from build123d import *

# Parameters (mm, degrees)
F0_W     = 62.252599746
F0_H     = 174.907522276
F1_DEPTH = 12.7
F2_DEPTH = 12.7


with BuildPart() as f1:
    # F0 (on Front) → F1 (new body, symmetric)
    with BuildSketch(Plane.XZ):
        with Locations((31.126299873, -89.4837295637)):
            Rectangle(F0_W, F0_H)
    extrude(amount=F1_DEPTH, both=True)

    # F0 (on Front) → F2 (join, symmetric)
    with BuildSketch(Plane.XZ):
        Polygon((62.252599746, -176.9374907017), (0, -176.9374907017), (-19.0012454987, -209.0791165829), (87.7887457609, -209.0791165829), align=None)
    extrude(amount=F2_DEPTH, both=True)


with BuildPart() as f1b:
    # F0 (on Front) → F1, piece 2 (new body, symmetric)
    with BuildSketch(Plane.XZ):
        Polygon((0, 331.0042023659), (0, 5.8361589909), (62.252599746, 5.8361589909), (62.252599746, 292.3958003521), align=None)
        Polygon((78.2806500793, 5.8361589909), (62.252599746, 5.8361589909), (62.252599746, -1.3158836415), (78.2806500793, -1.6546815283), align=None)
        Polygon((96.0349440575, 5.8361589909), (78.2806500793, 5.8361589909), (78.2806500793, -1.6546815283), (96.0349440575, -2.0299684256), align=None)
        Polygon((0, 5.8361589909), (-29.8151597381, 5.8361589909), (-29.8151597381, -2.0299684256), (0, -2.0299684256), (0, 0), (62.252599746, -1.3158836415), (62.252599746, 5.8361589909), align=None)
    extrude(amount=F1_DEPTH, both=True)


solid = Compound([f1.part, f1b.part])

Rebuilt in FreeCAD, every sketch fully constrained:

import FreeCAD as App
import Part
import Sketcher

V = App.Vector
Q = App.Units.Quantity

doc = App.newDocument("Part")
body = doc.addObject("PartDesign::Body", "Body")

sketch1 = doc.addObject("Sketcher::SketchObject", "Sketch")
body.addObject(sketch1)
sketch1.AttachmentSupport = (doc.XZ_Plane, [""])
sketch1.MapMode = "FlatFace"
sketch1.addGeometry([
    Part.LineSegment(V(0, -2.029968, 0), V(0, -176.937491, 0)),
    Part.LineSegment(V(0, -176.937491, 0), V(62.2526, -176.937491, 0)),
    Part.LineSegment(V(62.2526, -176.937491, 0), V(62.2526, -2.029968, 0)),
    Part.LineSegment(V(62.2526, -2.029968, 0), V(0, -2.029968, 0)),
], False)
sketch1.addConstraint([
    Sketcher.Constraint("Coincident", 0, 2, 1, 1),
    Sketcher.Constraint("Coincident", 1, 2, 2, 1),
    Sketcher.Constraint("Coincident", 2, 2, 3, 1),
    Sketcher.Constraint("Coincident", 3, 2, 0, 1),
    Sketcher.Constraint("Vertical", 0),
    Sketcher.Constraint("Horizontal", 1),
    Sketcher.Constraint("Vertical", 2),
    Sketcher.Constraint("Horizontal", 3),
    Sketcher.Constraint("PointOnObject", 0, 2, -2),
    Sketcher.Constraint("DistanceX", 1, 1, 1, 2, 62.2526),
    Sketcher.Constraint("DistanceY", 0, 2, 0, 1, 174.907522),
    Sketcher.Constraint("DistanceY", 0, 2, -1, 1, 176.937491),
])
pad1 = doc.addObject("PartDesign::Pad", "Pad")
body.addObject(pad1)
pad1.Profile = sketch1
pad1.Length = Q("1 in")
pad1.Midplane = True

sketch2 = doc.addObject("Sketcher::SketchObject", "Sketch001")
body.addObject(sketch2)
sketch2.AttachmentSupport = (doc.XZ_Plane, [""])
sketch2.MapMode = "FlatFace"
sketch2.addGeometry([
    Part.LineSegment(V(62.2526, -176.937491, 0), V(0, -176.937491, 0)),
    Part.LineSegment(V(0, -176.937491, 0), V(-19.001245, -209.079117, 0)),
    Part.LineSegment(V(-19.001245, -209.079117, 0), V(87.788746, -209.079117, 0)),
    Part.LineSegment(V(87.788746, -209.079117, 0), V(62.2526, -176.937491, 0)),
], False)
sketch2.addConstraint([
    Sketcher.Constraint("Coincident", 0, 2, 1, 1),
    Sketcher.Constraint("Coincident", 1, 2, 2, 1),
    Sketcher.Constraint("Coincident", 2, 2, 3, 1),
    Sketcher.Constraint("Coincident", 3, 2, 0, 1),
    Sketcher.Constraint("Horizontal", 0),
    Sketcher.Constraint("Horizontal", 2),
    Sketcher.Constraint("PointOnObject", 0, 2, -2),
    Sketcher.Constraint("DistanceX", 0, 2, 0, 1, 62.2526),
    Sketcher.Constraint("DistanceX", 2, 1, 2, 2, 106.789991),
    Sketcher.Constraint("Distance", 1, 37.33807),
    Sketcher.Constraint("Distance", 3, 41.05093),
    Sketcher.Constraint("DistanceY", 0, 2, -1, 1, 176.937491),
])
pad2 = doc.addObject("PartDesign::Pad", "Pad001")
body.addObject(pad2)
pad2.Profile = sketch2
pad2.Length = Q("1 in")
pad2.Midplane = True
body2 = doc.addObject("PartDesign::Body", "Body001")

sketch3 = doc.addObject("Sketcher::SketchObject", "Sketch002")
body2.addObject(sketch3)
sketch3.AttachmentSupport = (doc.getObject("XZ_Plane001"), [""])
sketch3.MapMode = "FlatFace"
sketch3.addGeometry([
    Part.LineSegment(V(0, 331.004202, 0), V(0, 5.836159, 0)),
    Part.LineSegment(V(0, 5.836159, 0), V(-29.81516, 5.836159, 0)),
    Part.LineSegment(V(-29.81516, 5.836159, 0), V(-29.81516, -2.029968, 0)),
    Part.LineSegment(V(-29.81516, -2.029968, 0), V(0, -2.029968, 0)),
    Part.LineSegment(V(0, -2.029968, 0), V(0, 0, 0)),
    Part.LineSegment(V(0, 0, 0), V(62.2526, -1.315884, 0)),
    Part.LineSegment(V(62.2526, -1.315884, 0), V(78.28065, -1.654682, 0)),
    Part.LineSegment(V(78.28065, -1.654682, 0), V(96.034944, -2.029968, 0)),
    Part.LineSegment(V(96.034944, -2.029968, 0), V(96.034944, 5.836159, 0)),
    Part.LineSegment(V(96.034944, 5.836159, 0), V(62.2526, 5.836159, 0)),
    Part.LineSegment(V(62.2526, 5.836159, 0), V(62.2526, 292.3958, 0)),
    Part.LineSegment(V(62.2526, 292.3958, 0), V(0, 331.004202, 0)),
], False)
sketch3.addConstraint([
    Sketcher.Constraint("Coincident", 0, 2, 1, 1),
    Sketcher.Constraint("Coincident", 1, 2, 2, 1),
    Sketcher.Constraint("Coincident", 2, 2, 3, 1),
    Sketcher.Constraint("Coincident", 3, 2, 4, 1),
    Sketcher.Constraint("Coincident", 4, 2, 5, 1),
    Sketcher.Constraint("Coincident", 5, 2, 6, 1),
    Sketcher.Constraint("Coincident", 6, 2, 7, 1),
    Sketcher.Constraint("Coincident", 7, 2, 8, 1),
    Sketcher.Constraint("Coincident", 8, 2, 9, 1),
    Sketcher.Constraint("Coincident", 9, 2, 10, 1),
    Sketcher.Constraint("Coincident", 10, 2, 11, 1),
    Sketcher.Constraint("Coincident", 11, 2, 0, 1),
    Sketcher.Constraint("Vertical", 0),
    Sketcher.Constraint("Horizontal", 1),
    Sketcher.Constraint("Vertical", 2),
    Sketcher.Constraint("Horizontal", 3),
    Sketcher.Constraint("Vertical", 4),
    Sketcher.Constraint("Vertical", 8),
    Sketcher.Constraint("Horizontal", 9),
    Sketcher.Constraint("Vertical", 10),
    Sketcher.Constraint("Coincident", 4, 2, -1, 1),
    Sketcher.Constraint("PointOnObject", 0, 2, -2),
    Sketcher.Constraint("Parallel", 5, 6),
    Sketcher.Constraint("Parallel", 6, 7),
    Sketcher.Constraint("Horizontal", 3, 2, 7, 2),
    Sketcher.Constraint("Horizontal", 1, 2, 8, 2),
    Sketcher.Constraint("Vertical", 5, 2, 9, 2),
    Sketcher.Constraint("DistanceX", 1, 2, 1, 1, 29.81516),
    Sketcher.Constraint("DistanceY", 4, 1, 4, 2, 2.029968),
    Sketcher.Constraint("DistanceY", 10, 1, 10, 2, 286.559641),
    Sketcher.Constraint("DistanceX", -1, 1, 5, 2, 62.2526),
    Sketcher.Constraint("DistanceY", -1, 1, 10, 2, 292.3958),
    Sketcher.Constraint("Distance", 6, 16.031631),
    Sketcher.Constraint("Distance", 7, 17.75826),
    Sketcher.Constraint("Distance", 11, 73.252951),
])
pad3 = doc.addObject("PartDesign::Pad", "Pad002")
body2.addObject(pad3)
pad3.Profile = sketch3
pad3.Length = Q("1 in")
pad3.Midplane = True

doc.recompute()
